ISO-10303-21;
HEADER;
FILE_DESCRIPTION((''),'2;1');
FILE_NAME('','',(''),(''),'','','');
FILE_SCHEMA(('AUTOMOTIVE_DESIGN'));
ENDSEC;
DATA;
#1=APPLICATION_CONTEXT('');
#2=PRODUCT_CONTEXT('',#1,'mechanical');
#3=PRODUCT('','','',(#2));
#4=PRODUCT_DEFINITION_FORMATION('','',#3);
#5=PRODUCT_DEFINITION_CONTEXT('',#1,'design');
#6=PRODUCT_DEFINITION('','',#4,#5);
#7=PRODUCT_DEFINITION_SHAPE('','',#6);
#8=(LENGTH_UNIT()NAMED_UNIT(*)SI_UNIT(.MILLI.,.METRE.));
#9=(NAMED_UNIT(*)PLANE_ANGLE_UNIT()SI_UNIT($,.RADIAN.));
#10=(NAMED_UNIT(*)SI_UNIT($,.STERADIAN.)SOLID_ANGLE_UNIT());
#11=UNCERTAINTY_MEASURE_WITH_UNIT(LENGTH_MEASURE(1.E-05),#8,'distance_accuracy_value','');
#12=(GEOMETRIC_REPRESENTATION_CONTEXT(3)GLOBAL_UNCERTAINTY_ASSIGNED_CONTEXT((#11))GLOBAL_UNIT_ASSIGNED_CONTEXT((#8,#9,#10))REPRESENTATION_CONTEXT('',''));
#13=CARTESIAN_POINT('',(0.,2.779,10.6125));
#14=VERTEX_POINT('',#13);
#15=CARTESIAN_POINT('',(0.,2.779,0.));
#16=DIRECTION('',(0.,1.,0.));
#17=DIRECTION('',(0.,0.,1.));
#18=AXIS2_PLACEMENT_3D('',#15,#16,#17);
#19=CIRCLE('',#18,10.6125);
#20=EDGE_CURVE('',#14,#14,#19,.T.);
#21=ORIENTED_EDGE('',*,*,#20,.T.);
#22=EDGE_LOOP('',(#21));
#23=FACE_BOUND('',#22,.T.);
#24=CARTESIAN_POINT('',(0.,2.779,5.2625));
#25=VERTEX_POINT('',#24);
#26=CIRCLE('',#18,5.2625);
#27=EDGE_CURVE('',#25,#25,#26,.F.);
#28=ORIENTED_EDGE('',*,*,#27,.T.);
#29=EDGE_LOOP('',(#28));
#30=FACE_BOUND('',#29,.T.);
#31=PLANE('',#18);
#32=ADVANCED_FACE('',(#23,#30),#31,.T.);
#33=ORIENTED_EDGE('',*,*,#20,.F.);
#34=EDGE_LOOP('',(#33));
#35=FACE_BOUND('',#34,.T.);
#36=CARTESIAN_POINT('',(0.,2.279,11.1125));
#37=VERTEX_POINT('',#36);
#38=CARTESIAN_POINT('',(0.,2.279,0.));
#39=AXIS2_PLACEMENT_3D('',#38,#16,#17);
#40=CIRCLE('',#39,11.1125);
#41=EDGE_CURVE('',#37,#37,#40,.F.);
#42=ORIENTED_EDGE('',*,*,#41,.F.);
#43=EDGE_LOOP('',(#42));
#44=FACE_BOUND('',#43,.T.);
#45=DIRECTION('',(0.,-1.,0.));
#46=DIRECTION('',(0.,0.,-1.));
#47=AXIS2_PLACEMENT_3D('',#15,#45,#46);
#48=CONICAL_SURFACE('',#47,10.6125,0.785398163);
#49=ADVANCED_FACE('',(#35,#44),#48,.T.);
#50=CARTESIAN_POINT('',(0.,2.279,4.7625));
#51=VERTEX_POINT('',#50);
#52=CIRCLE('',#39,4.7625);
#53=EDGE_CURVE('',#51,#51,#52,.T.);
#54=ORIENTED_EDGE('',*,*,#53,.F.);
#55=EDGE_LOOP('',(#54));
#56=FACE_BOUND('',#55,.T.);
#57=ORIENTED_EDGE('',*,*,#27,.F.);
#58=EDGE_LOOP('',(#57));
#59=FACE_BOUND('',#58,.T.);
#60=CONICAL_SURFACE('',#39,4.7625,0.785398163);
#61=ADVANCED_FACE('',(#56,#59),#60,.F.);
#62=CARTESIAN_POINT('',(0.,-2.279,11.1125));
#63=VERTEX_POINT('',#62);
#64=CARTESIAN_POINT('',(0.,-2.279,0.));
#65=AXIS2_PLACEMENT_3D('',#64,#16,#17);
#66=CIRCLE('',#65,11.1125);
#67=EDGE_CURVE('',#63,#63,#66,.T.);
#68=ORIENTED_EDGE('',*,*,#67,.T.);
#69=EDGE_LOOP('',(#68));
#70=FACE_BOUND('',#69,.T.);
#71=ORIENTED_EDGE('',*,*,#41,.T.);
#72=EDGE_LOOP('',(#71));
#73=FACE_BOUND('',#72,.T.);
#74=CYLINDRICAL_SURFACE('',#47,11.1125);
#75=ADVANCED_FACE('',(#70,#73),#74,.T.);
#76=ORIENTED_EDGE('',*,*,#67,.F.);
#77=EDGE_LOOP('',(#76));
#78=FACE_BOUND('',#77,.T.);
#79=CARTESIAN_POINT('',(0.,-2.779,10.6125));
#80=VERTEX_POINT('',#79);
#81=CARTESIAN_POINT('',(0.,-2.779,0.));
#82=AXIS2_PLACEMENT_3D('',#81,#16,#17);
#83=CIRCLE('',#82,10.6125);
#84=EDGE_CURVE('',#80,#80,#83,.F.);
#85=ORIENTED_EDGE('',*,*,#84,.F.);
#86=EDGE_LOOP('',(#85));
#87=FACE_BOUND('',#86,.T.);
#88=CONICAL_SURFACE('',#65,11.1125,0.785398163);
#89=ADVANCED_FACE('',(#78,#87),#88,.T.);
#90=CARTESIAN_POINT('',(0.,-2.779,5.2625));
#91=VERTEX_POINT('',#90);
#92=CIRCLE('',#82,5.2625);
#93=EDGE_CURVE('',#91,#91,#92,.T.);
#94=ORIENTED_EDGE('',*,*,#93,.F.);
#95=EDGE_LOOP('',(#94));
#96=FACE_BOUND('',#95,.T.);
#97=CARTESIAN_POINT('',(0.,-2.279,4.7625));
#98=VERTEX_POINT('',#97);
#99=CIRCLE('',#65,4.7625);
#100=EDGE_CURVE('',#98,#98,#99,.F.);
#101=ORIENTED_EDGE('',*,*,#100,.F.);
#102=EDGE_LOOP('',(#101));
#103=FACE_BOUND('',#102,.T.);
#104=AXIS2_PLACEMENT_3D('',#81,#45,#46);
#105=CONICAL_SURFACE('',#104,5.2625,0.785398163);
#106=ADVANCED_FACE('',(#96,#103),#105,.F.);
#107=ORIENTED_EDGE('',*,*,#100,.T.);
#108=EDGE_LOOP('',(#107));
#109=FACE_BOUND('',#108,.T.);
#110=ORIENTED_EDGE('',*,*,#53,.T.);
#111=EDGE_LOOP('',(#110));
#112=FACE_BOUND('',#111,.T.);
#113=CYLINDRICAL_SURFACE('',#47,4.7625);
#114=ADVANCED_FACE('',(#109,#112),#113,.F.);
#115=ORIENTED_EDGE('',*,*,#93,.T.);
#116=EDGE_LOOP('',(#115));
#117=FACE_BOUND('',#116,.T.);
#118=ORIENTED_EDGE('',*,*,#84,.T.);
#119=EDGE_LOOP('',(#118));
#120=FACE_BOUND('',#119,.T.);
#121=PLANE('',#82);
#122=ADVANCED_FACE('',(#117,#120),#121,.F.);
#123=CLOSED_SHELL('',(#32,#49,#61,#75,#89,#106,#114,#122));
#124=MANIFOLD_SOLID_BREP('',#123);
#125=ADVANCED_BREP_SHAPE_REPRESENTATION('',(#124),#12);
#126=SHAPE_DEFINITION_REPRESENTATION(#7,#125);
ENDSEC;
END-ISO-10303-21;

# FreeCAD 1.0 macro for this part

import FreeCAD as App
import Part
import Sketcher
Q = App.Units.Quantity


def edges_at(feature, points):
    """Names of the edges that pass closest to the given points."""
    edges = feature.Shape.Edges
    near = lambda p: min(range(len(edges)), key=lambda i: edges[i].distToShape(Part.Vertex(*p))[0])
    return sorted({f"Edge{near(p) + 1}" for p in points})

doc = App.newDocument("Part")
body = doc.addObject("PartDesign::Body", "Body")

# Sketch on XZ plane
sketch1 = doc.addObject("Sketcher::SketchObject", "Sketch")
body.addObject(sketch1)
sketch1.AttachmentSupport = (doc.XZ_Plane, [""])
sketch1.MapMode = "FlatFace"
sketch1.addGeometry([
    Part.Circle(App.Vector(0, 0, 0), App.Vector(0, 0, 1), 11.1125),
    Part.Circle(App.Vector(0, 0, 0), App.Vector(0, 0, 1), 4.7625),
], False)
sketch1.addConstraint([
    Sketcher.Constraint("Coincident", 0, 3, -1, 1),
    Sketcher.Constraint("Coincident", 1, 3, -1, 1),
    Sketcher.Constraint("Diameter", 0, Q("0.875 in")),
    Sketcher.Constraint("Diameter", 1, Q("0.375 in")),
])
pad1 = doc.addObject("PartDesign::Pad", "Pad")
body.addObject(pad1)
pad1.Profile = sketch1
pad1.Length = 5.558
pad1.Midplane = True
doc.recompute()

chamfer = doc.addObject("PartDesign::Chamfer", "Chamfer")
body.addObject(chamfer)
chamfer.Base = (pad1, edges_at(pad1, [
    (0, -2.779, -11.113),
    (0, 2.779, -11.113),
    (0, -2.779, -4.763),
    (0, 2.779, -4.763),
]))
chamfer.Size = 0.5

doc.recompute()
